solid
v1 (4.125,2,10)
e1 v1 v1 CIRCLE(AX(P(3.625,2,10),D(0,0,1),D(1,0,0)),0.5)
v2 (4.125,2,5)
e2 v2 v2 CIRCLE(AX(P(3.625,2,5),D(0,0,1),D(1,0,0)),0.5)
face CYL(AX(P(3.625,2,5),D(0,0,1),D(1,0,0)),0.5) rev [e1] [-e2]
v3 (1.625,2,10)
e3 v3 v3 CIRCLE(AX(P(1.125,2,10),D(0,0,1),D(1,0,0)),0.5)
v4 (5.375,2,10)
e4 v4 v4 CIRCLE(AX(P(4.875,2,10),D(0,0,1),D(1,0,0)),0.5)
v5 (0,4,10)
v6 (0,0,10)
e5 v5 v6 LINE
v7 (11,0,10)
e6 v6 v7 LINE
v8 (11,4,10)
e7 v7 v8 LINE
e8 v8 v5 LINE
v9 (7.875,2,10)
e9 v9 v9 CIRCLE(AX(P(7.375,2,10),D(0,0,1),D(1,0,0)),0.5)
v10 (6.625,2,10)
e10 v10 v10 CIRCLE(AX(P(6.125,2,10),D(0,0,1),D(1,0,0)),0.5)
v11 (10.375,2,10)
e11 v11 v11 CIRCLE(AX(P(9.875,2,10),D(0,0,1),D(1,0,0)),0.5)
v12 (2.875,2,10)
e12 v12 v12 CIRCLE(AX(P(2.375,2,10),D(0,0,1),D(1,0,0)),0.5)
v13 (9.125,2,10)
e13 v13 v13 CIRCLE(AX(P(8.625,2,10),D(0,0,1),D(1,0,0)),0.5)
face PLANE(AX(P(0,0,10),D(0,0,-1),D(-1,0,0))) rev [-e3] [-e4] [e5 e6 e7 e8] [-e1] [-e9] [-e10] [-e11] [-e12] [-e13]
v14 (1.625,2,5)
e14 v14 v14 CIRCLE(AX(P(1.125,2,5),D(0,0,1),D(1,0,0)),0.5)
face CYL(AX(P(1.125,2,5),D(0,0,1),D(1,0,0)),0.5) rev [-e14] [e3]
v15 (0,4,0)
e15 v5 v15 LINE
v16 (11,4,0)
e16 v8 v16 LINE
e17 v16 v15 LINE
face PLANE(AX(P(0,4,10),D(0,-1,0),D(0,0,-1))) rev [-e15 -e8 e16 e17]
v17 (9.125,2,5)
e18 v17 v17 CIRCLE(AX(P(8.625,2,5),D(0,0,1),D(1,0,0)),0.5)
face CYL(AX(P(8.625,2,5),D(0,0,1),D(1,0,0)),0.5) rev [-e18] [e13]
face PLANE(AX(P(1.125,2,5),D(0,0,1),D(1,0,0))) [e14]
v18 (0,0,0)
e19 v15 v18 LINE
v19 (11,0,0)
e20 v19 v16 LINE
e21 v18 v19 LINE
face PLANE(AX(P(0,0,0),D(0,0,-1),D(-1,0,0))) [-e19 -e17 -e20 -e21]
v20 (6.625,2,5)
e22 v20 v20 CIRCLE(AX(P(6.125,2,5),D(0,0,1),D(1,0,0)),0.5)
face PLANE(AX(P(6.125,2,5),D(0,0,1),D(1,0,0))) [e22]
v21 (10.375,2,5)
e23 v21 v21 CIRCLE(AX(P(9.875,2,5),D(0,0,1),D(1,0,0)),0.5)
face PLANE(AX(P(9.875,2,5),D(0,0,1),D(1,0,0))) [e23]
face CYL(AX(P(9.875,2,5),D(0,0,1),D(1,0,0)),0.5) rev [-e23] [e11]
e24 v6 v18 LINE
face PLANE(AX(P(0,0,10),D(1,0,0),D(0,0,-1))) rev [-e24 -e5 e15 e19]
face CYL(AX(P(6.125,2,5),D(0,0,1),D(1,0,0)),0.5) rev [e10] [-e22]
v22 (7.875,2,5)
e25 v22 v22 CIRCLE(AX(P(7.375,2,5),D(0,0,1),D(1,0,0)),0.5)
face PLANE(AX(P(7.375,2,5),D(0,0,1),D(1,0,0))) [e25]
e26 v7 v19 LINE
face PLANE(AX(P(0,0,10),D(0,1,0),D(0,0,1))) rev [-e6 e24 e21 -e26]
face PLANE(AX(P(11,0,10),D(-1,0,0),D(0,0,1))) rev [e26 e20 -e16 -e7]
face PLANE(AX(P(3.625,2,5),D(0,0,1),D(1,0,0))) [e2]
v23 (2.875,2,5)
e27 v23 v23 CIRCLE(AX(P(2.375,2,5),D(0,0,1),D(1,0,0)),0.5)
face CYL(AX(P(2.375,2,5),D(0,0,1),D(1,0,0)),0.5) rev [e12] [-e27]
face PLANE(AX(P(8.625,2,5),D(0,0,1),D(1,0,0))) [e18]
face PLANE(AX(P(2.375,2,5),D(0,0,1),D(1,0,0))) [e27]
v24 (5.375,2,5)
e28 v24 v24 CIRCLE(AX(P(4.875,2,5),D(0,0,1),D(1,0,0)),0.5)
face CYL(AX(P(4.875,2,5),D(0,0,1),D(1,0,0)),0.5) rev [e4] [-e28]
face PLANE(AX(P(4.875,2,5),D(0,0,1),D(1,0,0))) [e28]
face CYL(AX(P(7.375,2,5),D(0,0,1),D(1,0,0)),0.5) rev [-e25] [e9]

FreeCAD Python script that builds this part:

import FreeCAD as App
import Part
import Sketcher

doc = App.newDocument("Part")
body = doc.addObject("PartDesign::Body", "Body")

sketch1 = body.newObject("Sketcher::SketchObject", "Sketch")
sketch1.AttachmentSupport = (doc.getObject("XY_Plane"), [""])
sketch1.MapMode = "FlatFace"
sketch1.addGeometry([
    Part.LineSegment(App.Vector(0, 4, 0), App.Vector(0, 0, 0)),
    Part.LineSegment(App.Vector(0, 0, 0), App.Vector(11, 0, 0)),
    Part.LineSegment(App.Vector(11, 0, 0), App.Vector(11, 4, 0)),
    Part.LineSegment(App.Vector(11, 4, 0), App.Vector(0, 4, 0)),
], False)
sketch1.addConstraint([
    Sketcher.Constraint("Coincident", 0, 2, 1, 1),
    Sketcher.Constraint("Coincident", 1, 2, 2, 1),
    Sketcher.Constraint("Coincident", 2, 2, 3, 1),
    Sketcher.Constraint("Coincident", 3, 2, 0, 1),
    Sketcher.Constraint("Vertical", 0),
    Sketcher.Constraint("Horizontal", 1),
    Sketcher.Constraint("Vertical", 2),
    Sketcher.Constraint("Horizontal", 3),
    Sketcher.Constraint("Coincident", 0, 2, -1, 1),
    Sketcher.Constraint("DistanceX", 1, 1, 1, 2, 11.0),
    Sketcher.Constraint("DistanceY", 0, 2, 0, 1, 4.0),
])
pad1 = body.newObject("PartDesign::Pad", "Pad")
pad1.Profile = sketch1
pad1.Length = 10

sketch2 = body.newObject("Sketcher::SketchObject", "Sketch001")
sketch2.AttachmentSupport = (doc.getObject("XY_Plane"), [""])
sketch2.MapMode = "FlatFace"
sketch2.AttachmentOffset = App.Placement(App.Vector(0, 0, 10), App.Rotation())
sketch2.addGeometry([
    Part.Circle(App.Vector(1.1, 2, 0), App.Vector(0, 0, 1), 0.5),
    Part.Circle(App.Vector(2.4, 2, 0), App.Vector(0, 0, 1), 0.5),
    Part.Circle(App.Vector(3.6, 2, 0), App.Vector(0, 0, 1), 0.5),
    Part.Circle(App.Vector(4.9, 2, 0), App.Vector(0, 0, 1), 0.5),
    Part.Circle(App.Vector(6.1, 2, 0), App.Vector(0, 0, 1), 0.5),
    Part.Circle(App.Vector(7.4, 2, 0), App.Vector(0, 0, 1), 0.5),
    Part.Circle(App.Vector(8.6, 2, 0), App.Vector(0, 0, 1), 0.5),
    Part.Circle(App.Vector(9.9, 2, 0), App.Vector(0, 0, 1), 0.5),
], False)
sketch2.addConstraint([
    Sketcher.Constraint("Equal", 0, 1),
    Sketcher.Constraint("Equal", 1, 2),
    Sketcher.Constraint("Equal", 2, 3),
    Sketcher.Constraint("Equal", 3, 4),
    Sketcher.Constraint("Equal", 4, 5),
    Sketcher.Constraint("Equal", 5, 6),
    Sketcher.Constraint("Equal", 6, 7),
    Sketcher.Constraint("Horizontal", 0, 3, 1, 3),
    Sketcher.Constraint("Horizontal", 1, 3, 2, 3),
    Sketcher.Constraint("Horizontal", 2, 3, 3, 3),
    Sketcher.Constraint("Horizontal", 3, 3, 4, 3),
    Sketcher.Constraint("Horizontal", 4, 3, 5, 3),
    Sketcher.Constraint("Horizontal", 5, 3, 6, 3),
    Sketcher.Constraint("Horizontal", 6, 3, 7, 3),
    Sketcher.Constraint("Diameter", 0, 1.0),
    Sketcher.Constraint("DistanceY", -1, 1, 0, 3, 2.0),
    Sketcher.Constraint("DistanceX", 0, 3, 4, 3, 5.0),
    Sketcher.Constraint("DistanceX", 1, 3, 5, 3, 5.0),
    Sketcher.Constraint("DistanceX", 2, 3, 6, 3, 5.0),
    Sketcher.Constraint("DistanceX", 3, 3, 7, 3, 5.0),
    Sketcher.Constraint("DistanceX", 0, 3, 2, 3, 2.5),
    Sketcher.Constraint("DistanceX", 1, 3, 3, 3, 2.5),
    Sketcher.Constraint("DistanceX", 0, 3, 1, 3, 1.25),
    Sketcher.Constraint("DistanceX", -1, 1, 0, 3, 1.125),
])
pocket1 = body.newObject("PartDesign::Pocket", "Pocket")
pocket1.Profile = sketch2
pocket1.Length = 5

doc.recompute()
